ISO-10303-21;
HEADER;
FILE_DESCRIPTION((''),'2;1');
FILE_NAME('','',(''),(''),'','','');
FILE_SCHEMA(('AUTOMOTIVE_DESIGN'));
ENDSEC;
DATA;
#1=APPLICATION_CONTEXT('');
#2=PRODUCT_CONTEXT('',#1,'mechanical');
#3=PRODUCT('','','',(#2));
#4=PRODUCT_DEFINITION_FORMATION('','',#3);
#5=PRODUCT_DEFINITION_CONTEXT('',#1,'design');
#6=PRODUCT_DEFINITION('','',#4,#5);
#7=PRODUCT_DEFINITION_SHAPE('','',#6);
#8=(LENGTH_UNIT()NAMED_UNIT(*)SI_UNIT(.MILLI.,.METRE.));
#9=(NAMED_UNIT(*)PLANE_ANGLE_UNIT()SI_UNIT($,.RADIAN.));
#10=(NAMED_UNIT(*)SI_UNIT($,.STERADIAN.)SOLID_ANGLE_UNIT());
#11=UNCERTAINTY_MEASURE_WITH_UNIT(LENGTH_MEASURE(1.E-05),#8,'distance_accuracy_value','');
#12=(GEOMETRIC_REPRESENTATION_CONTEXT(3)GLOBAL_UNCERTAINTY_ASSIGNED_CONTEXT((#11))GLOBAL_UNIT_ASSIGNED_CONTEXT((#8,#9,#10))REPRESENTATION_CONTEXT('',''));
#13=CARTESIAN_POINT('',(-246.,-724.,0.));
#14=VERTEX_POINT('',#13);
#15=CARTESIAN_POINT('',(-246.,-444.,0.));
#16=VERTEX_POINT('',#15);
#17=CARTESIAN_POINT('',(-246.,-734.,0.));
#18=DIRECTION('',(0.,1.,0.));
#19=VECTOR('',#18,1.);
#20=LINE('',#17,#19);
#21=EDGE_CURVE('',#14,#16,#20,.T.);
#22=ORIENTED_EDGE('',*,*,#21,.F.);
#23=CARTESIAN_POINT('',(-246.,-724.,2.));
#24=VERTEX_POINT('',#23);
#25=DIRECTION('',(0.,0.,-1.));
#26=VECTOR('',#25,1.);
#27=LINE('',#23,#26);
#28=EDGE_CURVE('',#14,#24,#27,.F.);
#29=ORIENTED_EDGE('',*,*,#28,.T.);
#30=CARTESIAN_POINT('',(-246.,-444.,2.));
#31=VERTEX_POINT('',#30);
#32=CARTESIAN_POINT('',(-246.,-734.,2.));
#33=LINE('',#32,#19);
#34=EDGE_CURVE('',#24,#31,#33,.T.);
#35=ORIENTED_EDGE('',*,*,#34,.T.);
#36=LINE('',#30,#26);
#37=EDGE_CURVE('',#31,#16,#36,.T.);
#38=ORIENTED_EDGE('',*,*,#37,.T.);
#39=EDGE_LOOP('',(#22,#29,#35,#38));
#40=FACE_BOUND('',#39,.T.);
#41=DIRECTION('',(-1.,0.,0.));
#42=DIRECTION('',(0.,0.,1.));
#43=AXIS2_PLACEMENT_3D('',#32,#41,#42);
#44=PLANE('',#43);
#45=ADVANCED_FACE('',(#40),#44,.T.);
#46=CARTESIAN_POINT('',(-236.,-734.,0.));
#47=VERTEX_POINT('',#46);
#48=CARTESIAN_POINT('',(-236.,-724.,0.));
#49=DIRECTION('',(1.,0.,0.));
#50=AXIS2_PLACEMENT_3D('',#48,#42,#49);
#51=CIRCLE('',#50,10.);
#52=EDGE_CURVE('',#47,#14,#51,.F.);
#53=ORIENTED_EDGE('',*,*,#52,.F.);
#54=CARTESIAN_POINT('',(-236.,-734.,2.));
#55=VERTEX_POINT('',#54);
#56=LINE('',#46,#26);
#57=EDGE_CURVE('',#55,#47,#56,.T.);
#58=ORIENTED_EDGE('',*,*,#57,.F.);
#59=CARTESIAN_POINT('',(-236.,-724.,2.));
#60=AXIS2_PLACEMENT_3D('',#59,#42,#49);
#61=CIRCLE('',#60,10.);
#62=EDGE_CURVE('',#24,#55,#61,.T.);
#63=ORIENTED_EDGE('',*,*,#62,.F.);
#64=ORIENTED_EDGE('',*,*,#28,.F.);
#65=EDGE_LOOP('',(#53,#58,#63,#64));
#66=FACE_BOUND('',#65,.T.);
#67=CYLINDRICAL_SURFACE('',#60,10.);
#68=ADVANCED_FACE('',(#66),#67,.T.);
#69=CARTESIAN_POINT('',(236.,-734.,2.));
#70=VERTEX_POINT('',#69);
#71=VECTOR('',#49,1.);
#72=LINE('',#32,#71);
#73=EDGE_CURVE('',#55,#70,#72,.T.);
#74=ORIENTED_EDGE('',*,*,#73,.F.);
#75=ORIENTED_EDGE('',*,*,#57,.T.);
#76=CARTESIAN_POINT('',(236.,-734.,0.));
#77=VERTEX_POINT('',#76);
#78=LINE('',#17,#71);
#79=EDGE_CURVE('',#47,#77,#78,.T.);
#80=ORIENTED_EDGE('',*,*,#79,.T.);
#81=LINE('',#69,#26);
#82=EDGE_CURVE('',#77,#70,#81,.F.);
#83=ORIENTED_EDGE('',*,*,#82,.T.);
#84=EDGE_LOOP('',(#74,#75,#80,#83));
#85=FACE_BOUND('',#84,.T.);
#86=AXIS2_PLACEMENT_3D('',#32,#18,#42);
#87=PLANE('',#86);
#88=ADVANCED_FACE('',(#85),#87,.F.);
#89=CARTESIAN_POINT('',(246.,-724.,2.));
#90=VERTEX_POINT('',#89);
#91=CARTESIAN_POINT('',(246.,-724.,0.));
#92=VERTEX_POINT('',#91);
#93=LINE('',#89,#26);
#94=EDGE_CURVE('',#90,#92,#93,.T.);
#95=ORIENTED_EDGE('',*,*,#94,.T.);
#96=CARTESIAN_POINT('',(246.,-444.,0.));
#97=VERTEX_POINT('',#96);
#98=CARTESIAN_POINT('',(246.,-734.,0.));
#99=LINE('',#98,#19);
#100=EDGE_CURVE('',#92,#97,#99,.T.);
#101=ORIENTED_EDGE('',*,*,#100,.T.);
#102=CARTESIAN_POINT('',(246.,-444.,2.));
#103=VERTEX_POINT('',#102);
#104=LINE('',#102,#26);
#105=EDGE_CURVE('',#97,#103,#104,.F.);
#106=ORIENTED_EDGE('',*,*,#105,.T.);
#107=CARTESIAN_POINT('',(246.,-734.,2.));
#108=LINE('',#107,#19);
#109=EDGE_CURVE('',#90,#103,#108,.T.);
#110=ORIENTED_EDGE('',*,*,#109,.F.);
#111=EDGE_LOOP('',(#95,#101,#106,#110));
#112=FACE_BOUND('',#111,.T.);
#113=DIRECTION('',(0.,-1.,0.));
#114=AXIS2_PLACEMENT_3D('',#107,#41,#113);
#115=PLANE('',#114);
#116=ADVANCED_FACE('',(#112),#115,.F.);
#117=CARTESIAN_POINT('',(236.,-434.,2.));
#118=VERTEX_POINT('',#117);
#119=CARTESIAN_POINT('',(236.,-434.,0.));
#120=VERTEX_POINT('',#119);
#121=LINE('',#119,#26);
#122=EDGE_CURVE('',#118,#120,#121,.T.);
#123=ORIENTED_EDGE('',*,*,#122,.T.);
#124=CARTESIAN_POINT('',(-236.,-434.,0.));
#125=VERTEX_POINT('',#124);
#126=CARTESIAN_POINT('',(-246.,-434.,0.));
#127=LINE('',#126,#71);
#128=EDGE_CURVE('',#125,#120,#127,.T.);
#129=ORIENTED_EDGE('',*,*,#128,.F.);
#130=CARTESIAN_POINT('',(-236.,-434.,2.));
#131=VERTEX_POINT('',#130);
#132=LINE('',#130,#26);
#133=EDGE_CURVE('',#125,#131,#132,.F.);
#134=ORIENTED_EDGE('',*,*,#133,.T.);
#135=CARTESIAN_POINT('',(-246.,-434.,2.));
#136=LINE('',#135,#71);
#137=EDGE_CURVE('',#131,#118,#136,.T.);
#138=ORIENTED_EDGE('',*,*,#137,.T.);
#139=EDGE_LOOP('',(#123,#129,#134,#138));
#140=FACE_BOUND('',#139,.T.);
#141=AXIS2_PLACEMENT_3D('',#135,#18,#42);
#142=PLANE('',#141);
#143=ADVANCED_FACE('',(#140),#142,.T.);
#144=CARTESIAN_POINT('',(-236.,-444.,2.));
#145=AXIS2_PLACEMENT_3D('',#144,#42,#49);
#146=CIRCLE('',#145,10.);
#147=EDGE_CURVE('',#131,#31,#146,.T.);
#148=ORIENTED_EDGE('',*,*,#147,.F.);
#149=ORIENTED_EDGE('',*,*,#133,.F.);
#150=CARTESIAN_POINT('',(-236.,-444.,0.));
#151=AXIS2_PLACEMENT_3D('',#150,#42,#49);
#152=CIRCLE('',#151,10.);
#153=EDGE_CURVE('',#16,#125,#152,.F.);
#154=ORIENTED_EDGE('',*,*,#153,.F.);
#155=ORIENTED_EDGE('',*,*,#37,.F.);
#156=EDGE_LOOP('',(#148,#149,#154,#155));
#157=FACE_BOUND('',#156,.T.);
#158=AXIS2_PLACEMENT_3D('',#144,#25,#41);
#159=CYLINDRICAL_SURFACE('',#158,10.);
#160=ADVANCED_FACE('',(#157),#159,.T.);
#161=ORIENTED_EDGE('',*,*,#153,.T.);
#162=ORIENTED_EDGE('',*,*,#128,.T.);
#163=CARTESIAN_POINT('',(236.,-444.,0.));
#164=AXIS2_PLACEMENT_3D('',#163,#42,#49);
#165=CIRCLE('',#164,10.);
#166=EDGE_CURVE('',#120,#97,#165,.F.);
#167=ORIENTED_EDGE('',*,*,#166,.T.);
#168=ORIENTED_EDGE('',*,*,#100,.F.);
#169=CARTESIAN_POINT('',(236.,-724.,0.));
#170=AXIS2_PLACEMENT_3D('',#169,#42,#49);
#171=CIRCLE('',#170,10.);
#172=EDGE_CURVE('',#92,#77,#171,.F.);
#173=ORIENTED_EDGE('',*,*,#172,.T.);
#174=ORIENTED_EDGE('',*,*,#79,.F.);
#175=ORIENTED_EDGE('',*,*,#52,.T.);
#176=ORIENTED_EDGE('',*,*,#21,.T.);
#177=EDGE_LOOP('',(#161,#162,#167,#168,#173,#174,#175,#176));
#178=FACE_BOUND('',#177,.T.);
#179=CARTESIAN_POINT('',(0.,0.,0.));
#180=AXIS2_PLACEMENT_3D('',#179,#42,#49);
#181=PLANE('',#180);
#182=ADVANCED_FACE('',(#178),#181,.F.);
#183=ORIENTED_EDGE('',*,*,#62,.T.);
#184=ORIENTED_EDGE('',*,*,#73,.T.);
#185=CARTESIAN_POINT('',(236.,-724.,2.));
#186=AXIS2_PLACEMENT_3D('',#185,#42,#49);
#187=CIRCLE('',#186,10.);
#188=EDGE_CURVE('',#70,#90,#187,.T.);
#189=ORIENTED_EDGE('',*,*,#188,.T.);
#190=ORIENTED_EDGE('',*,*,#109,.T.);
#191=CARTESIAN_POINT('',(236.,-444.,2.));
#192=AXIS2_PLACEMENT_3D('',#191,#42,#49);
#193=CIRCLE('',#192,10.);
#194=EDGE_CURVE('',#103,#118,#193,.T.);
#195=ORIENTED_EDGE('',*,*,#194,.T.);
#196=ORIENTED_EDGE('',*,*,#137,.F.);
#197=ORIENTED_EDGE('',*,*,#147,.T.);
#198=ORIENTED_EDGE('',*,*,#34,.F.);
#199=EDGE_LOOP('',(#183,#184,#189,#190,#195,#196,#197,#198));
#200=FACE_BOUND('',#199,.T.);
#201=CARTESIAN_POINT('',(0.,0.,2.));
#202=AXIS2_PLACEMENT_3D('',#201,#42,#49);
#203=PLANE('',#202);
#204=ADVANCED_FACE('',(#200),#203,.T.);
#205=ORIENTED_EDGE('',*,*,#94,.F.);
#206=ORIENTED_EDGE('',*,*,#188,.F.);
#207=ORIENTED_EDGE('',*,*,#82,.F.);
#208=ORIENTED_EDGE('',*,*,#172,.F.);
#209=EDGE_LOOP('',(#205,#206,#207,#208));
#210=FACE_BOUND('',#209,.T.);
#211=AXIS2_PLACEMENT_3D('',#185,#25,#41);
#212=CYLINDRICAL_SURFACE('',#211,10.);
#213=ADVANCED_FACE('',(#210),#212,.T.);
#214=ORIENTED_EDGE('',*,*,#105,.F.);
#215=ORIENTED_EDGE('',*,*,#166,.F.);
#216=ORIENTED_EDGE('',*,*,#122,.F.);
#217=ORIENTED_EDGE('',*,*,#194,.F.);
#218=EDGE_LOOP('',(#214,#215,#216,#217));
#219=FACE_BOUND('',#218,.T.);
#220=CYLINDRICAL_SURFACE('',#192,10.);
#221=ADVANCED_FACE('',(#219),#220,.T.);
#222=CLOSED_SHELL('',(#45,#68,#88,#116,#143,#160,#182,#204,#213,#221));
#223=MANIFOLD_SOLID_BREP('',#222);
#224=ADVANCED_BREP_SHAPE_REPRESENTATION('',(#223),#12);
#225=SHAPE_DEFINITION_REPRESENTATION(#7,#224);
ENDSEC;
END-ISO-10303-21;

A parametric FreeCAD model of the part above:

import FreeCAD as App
import Part
import Sketcher
from FreeCAD import Vector
Q = App.Units.Quantity


def edges_at(feature, points):
    """Names of the edges that pass closest to the given points."""
    edges = feature.Shape.Edges
    near = lambda p: min(range(len(edges)), key=lambda i: edges[i].distToShape(Part.Vertex(*p))[0])
    return sorted({f"Edge{near(p) + 1}" for p in points})


def add_polygon(sketch, points):
    """Adds a closed chain of lines whose ends are joined by coincident constraints."""
    first, n = sketch.GeometryCount, len(points)
    for a, b in zip(points, points[1:] + points[:1]):
        sketch.addGeometry(Part.LineSegment(App.Vector(*a, 0), App.Vector(*b, 0)), False)
    for i in range(n):
        sketch.addConstraint(Sketcher.Constraint("Coincident", first + i, 2, first + (i + 1) % n, 1))

doc = App.newDocument("Part")
body = doc.addObject("PartDesign::Body", "Body")

sketch1 = body.newObject("Sketcher::SketchObject", "Sketch")
sketch1.AttachmentSupport = (doc.getObject("XY_Plane"), [""])
sketch1.MapMode = "FlatFace"
add_polygon(sketch1, [(-246, -434), (-246, -734), (246, -734), (246, -434)])
sketch1.addConstraint([
    Sketcher.Constraint("Vertical", 0),
    Sketcher.Constraint("Horizontal", 1),
    Sketcher.Constraint("Vertical", 2),
    Sketcher.Constraint("Horizontal", 3),
    Sketcher.Constraint("DistanceX", 1, 1, 1, 2, Q("492 mm")),
    Sketcher.Constraint("DistanceY", 0, 2, 0, 1, Q("300 mm")),
    Sketcher.Constraint("DistanceX", 0, 2, -1, 1, Q("246 mm")),
    Sketcher.Constraint("DistanceY", 0, 2, -1, 1, Q("734 mm")),
])
pad1 = body.newObject("PartDesign::Pad", "Pad")
pad1.Profile = sketch1
pad1.Length = 2
doc.recompute()

fillet = body.newObject("PartDesign::Fillet", "Fillet")
fillet.Base = (pad1, edges_at(pad1, [
    (-246, -734, 1),
    (-246, -434, 1),
    (246, -434, 1),
    (246, -734, 1),
]))
fillet.Radius = 10

doc.recompute()
